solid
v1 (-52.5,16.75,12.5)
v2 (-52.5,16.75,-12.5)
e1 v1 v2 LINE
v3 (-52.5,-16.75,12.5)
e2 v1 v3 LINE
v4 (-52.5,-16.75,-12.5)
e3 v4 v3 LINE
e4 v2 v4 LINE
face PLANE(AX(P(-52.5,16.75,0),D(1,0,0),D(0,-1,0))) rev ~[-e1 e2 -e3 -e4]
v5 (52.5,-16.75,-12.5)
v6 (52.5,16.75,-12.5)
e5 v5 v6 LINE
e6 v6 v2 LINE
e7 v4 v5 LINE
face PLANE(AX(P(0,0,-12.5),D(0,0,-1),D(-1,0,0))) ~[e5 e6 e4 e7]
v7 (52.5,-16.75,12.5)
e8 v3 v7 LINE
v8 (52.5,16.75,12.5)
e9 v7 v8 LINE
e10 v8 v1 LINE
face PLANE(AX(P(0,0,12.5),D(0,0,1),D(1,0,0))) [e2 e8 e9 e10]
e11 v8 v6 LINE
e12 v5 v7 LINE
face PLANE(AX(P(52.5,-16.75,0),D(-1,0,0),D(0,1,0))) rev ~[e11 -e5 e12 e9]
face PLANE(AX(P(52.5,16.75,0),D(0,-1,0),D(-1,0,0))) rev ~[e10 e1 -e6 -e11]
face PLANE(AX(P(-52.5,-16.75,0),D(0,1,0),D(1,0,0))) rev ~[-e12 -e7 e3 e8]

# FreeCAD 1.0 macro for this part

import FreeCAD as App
import Part
import Sketcher


def add_polygon(sketch, points):
    """Adds a closed chain of lines whose ends are joined by coincident constraints."""
    first, n = sketch.GeometryCount, len(points)
    for a, b in zip(points, points[1:] + points[:1]):
        sketch.addGeometry(Part.LineSegment(App.Vector(*a, 0), App.Vector(*b, 0)), False)
    for i in range(n):
        sketch.addConstraint(Sketcher.Constraint("Coincident", first + i, 2, first + (i + 1) % n, 1))

doc = App.newDocument("Part")
params = doc.addObject("Spreadsheet::Sheet", "Params")
for row, (alias, value) in enumerate([
    ("sketch1_width", "105 mm"),
    ("sketch1_height", "33.5 mm"),
    ("pad1_length", "12.5 mm"),
], start=1):
    params.set(f"A{row}", alias)
    params.set(f"B{row}", "=" + value)
    params.setAlias(f"B{row}", alias)

body = doc.addObject("PartDesign::Body", "Body")

# Sketch on XY plane
sketch1 = body.newObject("Sketcher::SketchObject", "Sketch")
sketch1.AttachmentSupport = (doc.getObject("XY_Plane"), [""])
sketch1.MapMode = "FlatFace"
add_polygon(sketch1, [(-52, 17), (-52, -17), (52, -17), (52, 17)])  # lines 0-3
sketch1.addConstraint([
    Sketcher.Constraint("Vertical", 0),
    Sketcher.Constraint("Horizontal", 1),
    Sketcher.Constraint("Vertical", 2),
    Sketcher.Constraint("Horizontal", 3),
    Sketcher.Constraint("Symmetric", 0, 2, 2, 2, -1, 1),
    Sketcher.Constraint("DistanceX", 1, 1, 1, 2, 105.0),
    Sketcher.Constraint("DistanceY", 0, 2, 0, 1, 33.5),
])
sketch1.setExpression("Constraints[9]", "Params.sketch1_width")
sketch1.setExpression("Constraints[10]", "Params.sketch1_height")
pad1 = body.newObject("PartDesign::Pad", "Pad")
pad1.Profile = sketch1
pad1.setExpression("Length", "Params.pad1_length")
doc.recompute()

mirrored = body.newObject("PartDesign::Mirrored", "Mirrored")
mirrored.Originals = [pad1]
mirrored.MirrorPlane = (doc.getObject("XY_Plane"), [""])
body.Tip = mirrored

doc.recompute()
